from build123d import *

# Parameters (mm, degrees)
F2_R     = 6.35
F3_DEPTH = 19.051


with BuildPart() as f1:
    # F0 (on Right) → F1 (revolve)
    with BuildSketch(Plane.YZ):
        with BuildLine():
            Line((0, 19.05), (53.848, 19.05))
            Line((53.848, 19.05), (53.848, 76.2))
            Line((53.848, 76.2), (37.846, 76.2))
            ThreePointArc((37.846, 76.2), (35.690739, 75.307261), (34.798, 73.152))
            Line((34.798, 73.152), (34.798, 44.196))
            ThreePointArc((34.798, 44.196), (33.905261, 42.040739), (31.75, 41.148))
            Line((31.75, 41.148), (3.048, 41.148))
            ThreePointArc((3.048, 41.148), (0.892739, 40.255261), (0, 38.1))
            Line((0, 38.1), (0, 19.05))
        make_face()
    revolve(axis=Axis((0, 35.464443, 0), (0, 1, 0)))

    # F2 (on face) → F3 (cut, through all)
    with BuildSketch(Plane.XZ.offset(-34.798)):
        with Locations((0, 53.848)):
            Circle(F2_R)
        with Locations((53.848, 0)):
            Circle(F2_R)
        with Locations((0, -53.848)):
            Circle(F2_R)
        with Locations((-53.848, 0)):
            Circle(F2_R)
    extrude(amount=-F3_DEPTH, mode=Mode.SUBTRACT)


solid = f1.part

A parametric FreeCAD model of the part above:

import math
import FreeCAD as App
import Part
import Sketcher

V = App.Vector
Q = App.Units.Quantity

doc = App.newDocument("Part")
params = doc.addObject("Spreadsheet::Sheet", "Params")
for row, (alias, value) in enumerate([
    ("sketch1_radius", "0.1200001 in"),
    ("sketch1_width", "0.63 in"),
    ("sketch1_height", "2.25 in"),
    ("sketch1_height2", "1.14 in"),
    ("revolution_angle", "360 deg"),
    ("sketch2_diameter", "0.5 in"),
], start=1):
    params.set(f"A{row}", alias)
    params.set(f"B{row}", "=" + value)
    params.setAlias(f"B{row}", alias)

body = doc.addObject("PartDesign::Body", "Body")

# Sketch on YZ plane
sketch1 = body.newObject("Sketcher::SketchObject", "Sketch")
sketch1.AttachmentSupport = (doc.getObject("YZ_Plane"), [""])
sketch1.MapMode = "FlatFace"
sketch1.addGeometry(Part.LineSegment(V(0, 19.1, 0), V(53.8, 19.1, 0)), False)
sketch1.addGeometry(Part.LineSegment(V(53.8, 19.1, 0), V(53.8, 76.2, 0)), False)
sketch1.addGeometry(Part.LineSegment(V(53.8, 76.2, 0), V(37.8, 76.2, 0)), False)
sketch1.addGeometry(Part.ArcOfCircle(Part.Circle(V(37.8, 73.2, 0), V(0, 0, 1), 3), math.radians(90), math.radians(180)), False)
sketch1.addGeometry(Part.LineSegment(V(34.8, 73.2, 0), V(34.8, 44.2, 0)), False)
sketch1.addGeometry(Part.ArcOfCircle(Part.Circle(V(31.7, 44.2, 0), V(0, 0, 1), 3), math.radians(-90), math.radians(0)), False)
sketch1.addGeometry(Part.LineSegment(V(31.8, 41.1, 0), V(3, 41.1, 0)), False)
sketch1.addGeometry(Part.ArcOfCircle(Part.Circle(V(3, 38.1, 0), V(0, 0, 1), 3), math.radians(90), math.radians(180)), False)
sketch1.addGeometry(Part.LineSegment(V(0, 38.1, 0), V(0, 19.1, 0)), False)
sketch1.addConstraint(Sketcher.Constraint("Coincident", 0, 2, 1, 1))
sketch1.addConstraint(Sketcher.Constraint("Coincident", 1, 2, 2, 1))
sketch1.addConstraint(Sketcher.Constraint("Tangent", 2, 2, 3, 1))
sketch1.addConstraint(Sketcher.Constraint("Tangent", 3, 2, 4, 1))
sketch1.addConstraint(Sketcher.Constraint("Tangent", 4, 2, 5, 2))
sketch1.addConstraint(Sketcher.Constraint("Tangent", 5, 1, 6, 1))
sketch1.addConstraint(Sketcher.Constraint("Tangent", 6, 2, 7, 1))
sketch1.addConstraint(Sketcher.Constraint("Tangent", 7, 2, 8, 1))
sketch1.addConstraint(Sketcher.Constraint("Coincident", 8, 2, 0, 1))
sketch1.addConstraint(Sketcher.Constraint("Horizontal", 0))
sketch1.addConstraint(Sketcher.Constraint("Vertical", 1))
sketch1.addConstraint(Sketcher.Constraint("Horizontal", 2))
sketch1.addConstraint(Sketcher.Constraint("Vertical", 4))
sketch1.addConstraint(Sketcher.Constraint("Horizontal", 6))
sketch1.addConstraint(Sketcher.Constraint("Vertical", 8))
sketch1.addConstraint(Sketcher.Constraint("Equal", 3, 5))
sketch1.addConstraint(Sketcher.Constraint("Equal", 5, 7))
sketch1.addConstraint(Sketcher.Constraint("PointOnObject", 7, 2, -2))
sketch1.addConstraint(Sketcher.Constraint("Radius", 3, Q("0.1200001 in")))
sketch1.addConstraint(Sketcher.Constraint("DistanceY", -1, 1, 1, 2, Q("3 in")))
sketch1.addConstraint(Sketcher.Constraint("DistanceX", 7, 3, 0, 2, Q("1.9999999 in")))
sketch1.addConstraint(Sketcher.Constraint("DistanceX", 2, 2, 2, 1, Q("0.63 in")))
sketch1.addConstraint(Sketcher.Constraint("DistanceY", 1, 1, 1, 2, Q("2.25 in")))
sketch1.addConstraint(Sketcher.Constraint("DistanceY", 4, 2, 4, 1, Q("1.14 in")))
sketch1.setExpression("Constraints[18]", "Params.sketch1_radius")
sketch1.setExpression("Constraints[21]", "Params.sketch1_width")
sketch1.setExpression("Constraints[22]", "Params.sketch1_height")
sketch1.setExpression("Constraints[23]", "Params.sketch1_height2")
revolution = body.newObject("PartDesign::Revolution", "Revolution")
revolution.Profile = sketch1
revolution.ReferenceAxis = (sketch1, ["H_Axis"])
revolution.setExpression("Angle", "Params.revolution_angle")

# Sketch on XZ plane
sketch2 = body.newObject("Sketcher::SketchObject", "Sketch001")
sketch2.AttachmentSupport = (doc.getObject("XZ_Plane"), [""])
sketch2.MapMode = "FlatFace"
sketch2.AttachmentOffset = App.Placement(V(0, 0, -1.37 * 25.4), App.Rotation())
sketch2.addGeometry(Part.Circle(V(0, 54, 0), V(0, 0, 1), 6), False)
sketch2.addGeometry(Part.Circle(V(54, 0, 0), V(0, 0, 1), 6), False)
sketch2.addGeometry(Part.Circle(V(0, -54, 0), V(0, 0, 1), 6), False)
sketch2.addGeometry(Part.Circle(V(-54, 0, 0), V(0, 0, 1), 6), False)
sketch2.addConstraint(Sketcher.Constraint("Equal", 0, 1))
sketch2.addConstraint(Sketcher.Constraint("Equal", 1, 2))
sketch2.addConstraint(Sketcher.Constraint("Equal", 2, 3))
sketch2.addConstraint(Sketcher.Constraint("Symmetric", 0, 3, 2, 3, -1, 1))
sketch2.addConstraint(Sketcher.Constraint("Symmetric", 1, 3, 3, 3, -1, 1))
sketch2.addConstraint(Sketcher.Constraint("PointOnObject", 0, 3, -2))
sketch2.addConstraint(Sketcher.Constraint("PointOnObject", 1, 3, -1))
sketch2.addConstraint(Sketcher.Constraint("Diameter", 0, Q("0.5 in")))
sketch2.addConstraint(Sketcher.Constraint("DistanceY", -1, 1, 0, 3, Q("2.12 in")))
sketch2.addConstraint(Sketcher.Constraint("DistanceX", -1, 1, 1, 3, Q("2.12 in")))
sketch2.setExpression("Constraints[7]", "Params.sketch2_diameter")
pocket1 = body.newObject("PartDesign::Pocket", "Pocket")
pocket1.Profile = sketch2
pocket1.Type = "ThroughAll"

doc.recompute()
